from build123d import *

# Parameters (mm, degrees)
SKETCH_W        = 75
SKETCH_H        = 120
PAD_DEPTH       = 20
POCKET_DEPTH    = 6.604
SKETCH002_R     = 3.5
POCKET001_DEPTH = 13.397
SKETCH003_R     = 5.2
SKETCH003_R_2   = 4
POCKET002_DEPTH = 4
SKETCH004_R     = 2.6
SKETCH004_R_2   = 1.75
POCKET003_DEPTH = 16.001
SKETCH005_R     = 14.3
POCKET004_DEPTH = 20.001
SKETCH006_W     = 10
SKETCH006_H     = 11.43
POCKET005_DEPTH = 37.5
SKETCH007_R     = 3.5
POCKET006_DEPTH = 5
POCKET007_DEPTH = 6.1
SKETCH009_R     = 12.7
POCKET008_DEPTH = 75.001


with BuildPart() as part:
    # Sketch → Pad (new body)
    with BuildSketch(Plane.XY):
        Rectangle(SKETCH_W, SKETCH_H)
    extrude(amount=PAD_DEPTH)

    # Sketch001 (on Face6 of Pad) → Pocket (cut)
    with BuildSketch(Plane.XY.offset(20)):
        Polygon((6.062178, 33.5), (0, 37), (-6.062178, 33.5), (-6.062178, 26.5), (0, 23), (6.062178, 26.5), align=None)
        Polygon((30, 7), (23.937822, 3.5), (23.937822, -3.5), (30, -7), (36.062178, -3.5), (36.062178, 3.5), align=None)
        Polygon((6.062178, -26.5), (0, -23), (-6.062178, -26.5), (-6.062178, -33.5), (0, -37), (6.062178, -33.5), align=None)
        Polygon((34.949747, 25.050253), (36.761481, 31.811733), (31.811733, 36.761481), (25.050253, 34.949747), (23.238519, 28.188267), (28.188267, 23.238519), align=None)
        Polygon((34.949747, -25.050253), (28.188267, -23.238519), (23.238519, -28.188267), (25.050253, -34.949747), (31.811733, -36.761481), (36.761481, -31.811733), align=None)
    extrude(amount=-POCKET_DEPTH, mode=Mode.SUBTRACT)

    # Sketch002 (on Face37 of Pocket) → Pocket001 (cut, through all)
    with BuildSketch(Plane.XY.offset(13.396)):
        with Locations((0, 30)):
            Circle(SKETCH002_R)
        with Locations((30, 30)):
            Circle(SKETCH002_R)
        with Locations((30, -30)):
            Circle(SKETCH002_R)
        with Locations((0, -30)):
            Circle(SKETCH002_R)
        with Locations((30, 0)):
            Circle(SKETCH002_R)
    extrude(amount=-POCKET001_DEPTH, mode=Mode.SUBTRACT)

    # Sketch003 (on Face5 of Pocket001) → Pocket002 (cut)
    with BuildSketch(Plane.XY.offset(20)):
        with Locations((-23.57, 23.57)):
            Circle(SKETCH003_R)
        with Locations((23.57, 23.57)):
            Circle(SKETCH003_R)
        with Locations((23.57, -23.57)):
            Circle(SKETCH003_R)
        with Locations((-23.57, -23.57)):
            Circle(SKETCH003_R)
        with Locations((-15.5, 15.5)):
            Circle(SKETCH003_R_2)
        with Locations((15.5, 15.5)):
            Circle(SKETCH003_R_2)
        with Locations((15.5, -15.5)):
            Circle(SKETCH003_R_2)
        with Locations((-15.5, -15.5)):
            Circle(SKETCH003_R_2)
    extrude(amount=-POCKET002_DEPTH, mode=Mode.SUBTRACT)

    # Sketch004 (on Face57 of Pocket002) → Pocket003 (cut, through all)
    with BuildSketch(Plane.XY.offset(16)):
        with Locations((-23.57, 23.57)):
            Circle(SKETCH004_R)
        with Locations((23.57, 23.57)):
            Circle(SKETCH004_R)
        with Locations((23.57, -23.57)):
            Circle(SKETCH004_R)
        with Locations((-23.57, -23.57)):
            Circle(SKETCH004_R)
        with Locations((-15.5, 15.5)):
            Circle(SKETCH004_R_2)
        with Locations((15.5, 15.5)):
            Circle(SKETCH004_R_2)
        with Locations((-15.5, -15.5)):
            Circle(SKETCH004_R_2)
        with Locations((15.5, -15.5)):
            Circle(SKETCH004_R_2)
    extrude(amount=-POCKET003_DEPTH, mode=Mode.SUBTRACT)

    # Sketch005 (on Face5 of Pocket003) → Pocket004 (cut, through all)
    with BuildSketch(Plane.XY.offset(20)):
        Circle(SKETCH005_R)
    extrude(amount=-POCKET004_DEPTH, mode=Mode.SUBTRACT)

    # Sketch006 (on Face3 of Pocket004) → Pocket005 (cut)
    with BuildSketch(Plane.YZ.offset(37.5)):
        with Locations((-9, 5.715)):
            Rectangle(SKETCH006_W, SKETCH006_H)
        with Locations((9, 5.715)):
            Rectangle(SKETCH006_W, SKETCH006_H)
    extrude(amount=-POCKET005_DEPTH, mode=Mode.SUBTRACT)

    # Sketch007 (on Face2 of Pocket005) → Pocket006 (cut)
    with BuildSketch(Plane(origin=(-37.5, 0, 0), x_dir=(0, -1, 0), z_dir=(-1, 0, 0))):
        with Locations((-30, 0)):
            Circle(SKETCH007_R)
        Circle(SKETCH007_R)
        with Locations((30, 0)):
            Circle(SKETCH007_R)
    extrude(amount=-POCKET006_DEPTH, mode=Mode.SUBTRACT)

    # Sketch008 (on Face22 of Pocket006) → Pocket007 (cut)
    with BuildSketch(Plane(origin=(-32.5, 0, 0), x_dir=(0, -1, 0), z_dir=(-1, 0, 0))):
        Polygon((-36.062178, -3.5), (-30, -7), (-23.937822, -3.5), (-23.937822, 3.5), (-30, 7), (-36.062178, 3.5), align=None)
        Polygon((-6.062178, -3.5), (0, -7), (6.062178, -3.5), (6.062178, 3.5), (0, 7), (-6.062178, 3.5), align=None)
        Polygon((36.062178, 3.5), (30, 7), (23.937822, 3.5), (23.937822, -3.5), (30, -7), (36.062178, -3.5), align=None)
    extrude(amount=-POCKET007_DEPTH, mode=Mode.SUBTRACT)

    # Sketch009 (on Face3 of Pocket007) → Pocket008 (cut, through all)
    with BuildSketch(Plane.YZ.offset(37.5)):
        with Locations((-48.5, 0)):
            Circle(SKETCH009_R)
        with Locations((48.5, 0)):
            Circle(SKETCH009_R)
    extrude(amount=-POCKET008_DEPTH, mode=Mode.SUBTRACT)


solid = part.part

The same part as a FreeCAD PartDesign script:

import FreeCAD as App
import Part
import Sketcher
Q = App.Units.Quantity


def add_polygon(sketch, points):
    """Adds a closed chain of lines whose ends are joined by coincident constraints."""
    first, n = sketch.GeometryCount, len(points)
    for a, b in zip(points, points[1:] + points[:1]):
        sketch.addGeometry(Part.LineSegment(App.Vector(*a, 0), App.Vector(*b, 0)), False)
    for i in range(n):
        sketch.addConstraint(Sketcher.Constraint("Coincident", first + i, 2, first + (i + 1) % n, 1))

doc = App.newDocument("Part")
body = doc.addObject("PartDesign::Body", "Body")

# Sketch on XY plane
sketch1 = doc.addObject("Sketcher::SketchObject", "Sketch")
body.addObject(sketch1)
sketch1.AttachmentSupport = (doc.XY_Plane, [""])
sketch1.MapMode = "FlatFace"
add_polygon(sketch1, [(-38, 60), (-38, -60), (38, -60), (38, 60)])  # lines 0-3
sketch1.addConstraint(Sketcher.Constraint("Vertical", 0))
sketch1.addConstraint(Sketcher.Constraint("Horizontal", 1))
sketch1.addConstraint(Sketcher.Constraint("Vertical", 2))
sketch1.addConstraint(Sketcher.Constraint("Horizontal", 3))
sketch1.addConstraint(Sketcher.Constraint("Symmetric", 0, 2, 2, 2, -1, 1))
sketch1.addConstraint(Sketcher.Constraint("DistanceX", 1, 1, 1, 2, 75.0))
sketch1.addConstraint(Sketcher.Constraint("DistanceY", 0, 2, 0, 1, 120.0))
pad1 = doc.addObject("PartDesign::Pad", "Pad")
body.addObject(pad1)
pad1.Profile = sketch1
pad1.Length = 20

# Sketch on XY plane
sketch2 = doc.addObject("Sketcher::SketchObject", "Sketch001")
body.addObject(sketch2)
sketch2.AttachmentSupport = (doc.XY_Plane, [""])
sketch2.MapMode = "FlatFace"
sketch2.AttachmentOffset = App.Placement(App.Vector(0, 0, 20), App.Rotation())
add_polygon(sketch2, [(6, 34), (0, 37), (-6, 34), (-6, 26), (0, 23), (6, 26)])  # lines 0-5
add_polygon(sketch2, [(30, 7), (24, 4), (24, -4), (30, -7), (36, -4), (36, 4)])  # lines 6-11
add_polygon(sketch2, [(6, -26), (0, -23), (-6, -26), (-6, -34), (0, -37), (6, -34)])  # lines 12-17
add_polygon(sketch2, [(35, 25), (37, 32), (32, 37), (25, 35), (23, 28), (28, 23)])  # lines 18-23
add_polygon(sketch2, [(35, -25), (28, -23), (23, -28), (25, -35), (32, -37), (37, -32)])  # lines 24-29
sketch2.addConstraint(Sketcher.Constraint("Vertical", 2))
sketch2.addConstraint(Sketcher.Constraint("Vertical", 5))
sketch2.addConstraint(Sketcher.Constraint("Vertical", 7))
sketch2.addConstraint(Sketcher.Constraint("Vertical", 10))
sketch2.addConstraint(Sketcher.Constraint("Vertical", 14))
sketch2.addConstraint(Sketcher.Constraint("Vertical", 17))
sketch2.addConstraint(Sketcher.Constraint("Symmetric", 3, 2, 12, 2, -1, 1))
sketch2.addConstraint(Sketcher.Constraint("Symmetric", 4, 2, 13, 2, -1, 1))
sketch2.addConstraint(Sketcher.Constraint("Symmetric", 0, 2, 15, 2, -1, 1))
sketch2.addConstraint(Sketcher.Constraint("Symmetric", 1, 2, 16, 2, -1, 1))
sketch2.addConstraint(Sketcher.Constraint("Symmetric", 2, 2, 4, 2, -2))
sketch2.addConstraint(Sketcher.Constraint("Symmetric", 8, 2, 11, 2, -1))
sketch2.addConstraint(Sketcher.Constraint("Symmetric", 22, 2, 24, 2, -1))
sketch2.addConstraint(Sketcher.Constraint("Symmetric", 21, 2, 25, 2, -1))
sketch2.addConstraint(Sketcher.Constraint("Symmetric", 20, 2, 26, 2, -1))
sketch2.addConstraint(Sketcher.Constraint("Symmetric", 19, 2, 27, 2, -1))
sketch2.addConstraint(Sketcher.Constraint("Symmetric", 18, 2, 28, 2, -1))
sketch2.addConstraint(Sketcher.Constraint("Symmetric", 23, 2, 29, 2, -1))
sketch2.addConstraint(Sketcher.Constraint("PointOnObject", 0, 2, -2))
sketch2.addConstraint(Sketcher.Constraint("PointOnObject", 3, 2, -2))
sketch2.addConstraint(Sketcher.Constraint("Parallel", 0, 3))
sketch2.addConstraint(Sketcher.Constraint("Parallel", 1, 4))
sketch2.addConstraint(Sketcher.Constraint("Parallel", 4, 6))
sketch2.addConstraint(Sketcher.Constraint("Parallel", 3, 8))
sketch2.addConstraint(Sketcher.Constraint("Parallel", 6, 9))
sketch2.addConstraint(Sketcher.Constraint("Parallel", 8, 11))
sketch2.addConstraint(Sketcher.Constraint("Parallel", 11, 12))
sketch2.addConstraint(Sketcher.Constraint("Parallel", 12, 15))
sketch2.addConstraint(Sketcher.Constraint("Parallel", 18, 21))
sketch2.addConstraint(Sketcher.Constraint("Parallel", 19, 22))
sketch2.addConstraint(Sketcher.Constraint("Parallel", 20, 23))
sketch2.addConstraint(Sketcher.Constraint("Perpendicular", 21, 24))
sketch2.addConstraint(Sketcher.Constraint("Perpendicular", 22, 25))
sketch2.addConstraint(Sketcher.Constraint("Horizontal", 7, 2, 9, 2))
sketch2.addConstraint(Sketcher.Constraint("Equal", 5, 7))
sketch2.addConstraint(Sketcher.Constraint("Equal", 4, 6))
sketch2.addConstraint(Sketcher.Constraint("Equal", 16, 18))
sketch2.addConstraint(Sketcher.Constraint("Equal", 18, 19))
sketch2.addConstraint(Sketcher.Constraint("Equal", 19, 20))
sketch2.addConstraint(Sketcher.Constraint("Equal", 20, 21))
sketch2.addConstraint(Sketcher.Constraint("DistanceY", 2, 2, 2, 1, 7.0))
sketch2.addConstraint(Sketcher.Constraint("Angle", 0, Q("150.000001 deg")))
sketch2.addConstraint(Sketcher.Constraint("Angle", 18, Q("74.999993 deg")))
sketch2.addConstraint(Sketcher.Constraint("Distance", 0, 7.0))
sketch2.addConstraint(Sketcher.Constraint("DistanceY", -1, 1, 0, 2, 37.0))
sketch2.addConstraint(Sketcher.Constraint("DistanceX", -1, 1, 8, 2, 30.0))
sketch2.addConstraint(Sketcher.Constraint("DistanceX", -1, 1, 18, 2, 36.761481))
sketch2.addConstraint(Sketcher.Constraint("DistanceY", -1, 1, 19, 2, 36.761481))
pocket1 = doc.addObject("PartDesign::Pocket", "Pocket")
body.addObject(pocket1)
pocket1.Profile = sketch2
pocket1.Length = 6.604

# Sketch on XY plane
sketch3 = doc.addObject("Sketcher::SketchObject", "Sketch002")
body.addObject(sketch3)
sketch3.AttachmentSupport = (doc.XY_Plane, [""])
sketch3.MapMode = "FlatFace"
sketch3.AttachmentOffset = App.Placement(App.Vector(0, 0, 13.396), App.Rotation())
sketch3.addGeometry(Part.Circle(App.Vector(0, 30, 0), App.Vector(0, 0, 1), 3.5), False)
sketch3.addGeometry(Part.Circle(App.Vector(30, 30, 0), App.Vector(0, 0, 1), 3.5), False)
sketch3.addGeometry(Part.Circle(App.Vector(30, -30, 0), App.Vector(0, 0, 1), 3.5), False)
sketch3.addGeometry(Part.Circle(App.Vector(0, -30, 0), App.Vector(0, 0, 1), 3.5), False)
sketch3.addGeometry(Part.Circle(App.Vector(30, 0, 0), App.Vector(0, 0, 1), 3.5), False)
sketch3.addConstraint(Sketcher.Constraint("Equal", 0, 1))
sketch3.addConstraint(Sketcher.Constraint("Equal", 1, 2))
sketch3.addConstraint(Sketcher.Constraint("Equal", 2, 3))
sketch3.addConstraint(Sketcher.Constraint("Equal", 3, 4))
sketch3.addConstraint(Sketcher.Constraint("Symmetric", 0, 3, 3, 3, -1, 1))
sketch3.addConstraint(Sketcher.Constraint("Symmetric", 1, 3, 2, 3, -1))
sketch3.addConstraint(Sketcher.Constraint("PointOnObject", 0, 3, -2))
sketch3.addConstraint(Sketcher.Constraint("PointOnObject", 4, 3, -1))
sketch3.addConstraint(Sketcher.Constraint("Horizontal", 0, 3, 1, 3))
sketch3.addConstraint(Sketcher.Constraint("Vertical", 2, 3, 4, 3))
sketch3.addConstraint(Sketcher.Constraint("Diameter", 0, 7.0))
sketch3.addConstraint(Sketcher.Constraint("DistanceY", -1, 1, 0, 3, 30.0))
sketch3.addConstraint(Sketcher.Constraint("DistanceX", -1, 1, 1, 3, 30.0))
pocket2 = doc.addObject("PartDesign::Pocket", "Pocket001")
body.addObject(pocket2)
pocket2.Profile = sketch3
pocket2.Type = "ThroughAll"

# Sketch on XY plane
sketch4 = doc.addObject("Sketcher::SketchObject", "Sketch003")
body.addObject(sketch4)
sketch4.AttachmentSupport = (doc.XY_Plane, [""])
sketch4.MapMode = "FlatFace"
sketch4.AttachmentOffset = App.Placement(App.Vector(0, 0, 20), App.Rotation())
sketch4.addGeometry(Part.Circle(App.Vector(-23.6, 23.6, 0), App.Vector(0, 0, 1), 5.2), False)
sketch4.addGeometry(Part.Circle(App.Vector(23.6, 23.6, 0), App.Vector(0, 0, 1), 5.2), False)
sketch4.addGeometry(Part.Circle(App.Vector(23.6, -23.6, 0), App.Vector(0, 0, 1), 5.2), False)
sketch4.addGeometry(Part.Circle(App.Vector(-23.6, -23.6, 0), App.Vector(0, 0, 1), 5.2), False)
sketch4.addGeometry(Part.Circle(App.Vector(-15.5, 15.5, 0), App.Vector(0, 0, 1), 4), False)
sketch4.addGeometry(Part.Circle(App.Vector(15.5, 15.5, 0), App.Vector(0, 0, 1), 4), False)
sketch4.addGeometry(Part.Circle(App.Vector(15.5, -15.5, 0), App.Vector(0, 0, 1), 4), False)
sketch4.addGeometry(Part.Circle(App.Vector(-15.5, -15.5, 0), App.Vector(0, 0, 1), 4), False)
sketch4.addConstraint(Sketcher.Constraint("Equal", 0, 1))
sketch4.addConstraint(Sketcher.Constraint("Equal", 1, 2))
sketch4.addConstraint(Sketcher.Constraint("Equal", 2, 3))
sketch4.addConstraint(Sketcher.Constraint("Equal", 4, 5))
sketch4.addConstraint(Sketcher.Constraint("Equal", 5, 6))
sketch4.addConstraint(Sketcher.Constraint("Equal", 6, 7))
sketch4.addConstraint(Sketcher.Constraint("Symmetric", 0, 3, 2, 3, -1, 1))
sketch4.addConstraint(Sketcher.Constraint("Symmetric", 1, 3, 3, 3, -1, 1))
sketch4.addConstraint(Sketcher.Constraint("Symmetric", 4, 3, 6, 3, -1, 1))
sketch4.addConstraint(Sketcher.Constraint("Symmetric", 5, 3, 7, 3, -1, 1))
sketch4.addConstraint(Sketcher.Constraint("Symmetric", 0, 3, 1, 3, -2))
sketch4.addConstraint(Sketcher.Constraint("Symmetric", 4, 3, 5, 3, -2))
sketch4.addConstraint(Sketcher.Constraint("Diameter", 4, 8.0))
sketch4.addConstraint(Sketcher.Constraint("Diameter", 0, 10.4))
sketch4.addConstraint(Sketcher.Constraint("DistanceX", 4, 3, 5, 3, 31.0))
sketch4.addConstraint(Sketcher.Constraint("DistanceY", 6, 3, 5, 3, 31.0))
sketch4.addConstraint(Sketcher.Constraint("DistanceX", 0, 3, -1, 1, 23.57))
sketch4.addConstraint(Sketcher.Constraint("DistanceY", -1, 1, 0, 3, 23.57))
pocket3 = doc.addObject("PartDesign::Pocket", "Pocket002")
body.addObject(pocket3)
pocket3.Profile = sketch4
pocket3.Length = 4

# Sketch on XY plane
sketch5 = doc.addObject("Sketcher::SketchObject", "Sketch004")
body.addObject(sketch5)
sketch5.AttachmentSupport = (doc.XY_Plane, [""])
sketch5.MapMode = "FlatFace"
sketch5.AttachmentOffset = App.Placement(App.Vector(0, 0, 16), App.Rotation())
sketch5.addGeometry(Part.Circle(App.Vector(-23.6, 23.6, 0), App.Vector(0, 0, 1), 2.6), False)
sketch5.addGeometry(Part.Circle(App.Vector(23.6, 23.6, 0), App.Vector(0, 0, 1), 2.6), False)
sketch5.addGeometry(Part.Circle(App.Vector(23.6, -23.6, 0), App.Vector(0, 0, 1), 2.6), False)
sketch5.addGeometry(Part.Circle(App.Vector(-23.6, -23.6, 0), App.Vector(0, 0, 1), 2.6), False)
sketch5.addGeometry(Part.Circle(App.Vector(-15.5, 15.5, 0), App.Vector(0, 0, 1), 1.8), False)
sketch5.addGeometry(Part.Circle(App.Vector(15.5, 15.5, 0), App.Vector(0, 0, 1), 1.8), False)
sketch5.addGeometry(Part.Circle(App.Vector(-15.5, -15.5, 0), App.Vector(0, 0, 1), 1.8), False)
sketch5.addGeometry(Part.Circle(App.Vector(15.5, -15.5, 0), App.Vector(0, 0, 1), 1.8), False)
sketch5.addConstraint(Sketcher.Constraint("Equal", 0, 1))
sketch5.addConstraint(Sketcher.Constraint("Equal", 1, 2))
sketch5.addConstraint(Sketcher.Constraint("Equal", 2, 3))
sketch5.addConstraint(Sketcher.Constraint("Equal", 4, 5))
sketch5.addConstraint(Sketcher.Constraint("Equal", 5, 6))
sketch5.addConstraint(Sketcher.Constraint("Equal", 6, 7))
sketch5.addConstraint(Sketcher.Constraint("Symmetric", 0, 3, 2, 3, -1, 1))
sketch5.addConstraint(Sketcher.Constraint("Symmetric", 1, 3, 3, 3, -1, 1))
sketch5.addConstraint(Sketcher.Constraint("Symmetric", 5, 3, 6, 3, -1, 1))
sketch5.addConstraint(Sketcher.Constraint("Symmetric", 4, 3, 7, 3, -1, 1))
sketch5.addConstraint(Sketcher.Constraint("Symmetric", 0, 3, 1, 3, -2))
sketch5.addConstraint(Sketcher.Constraint("Symmetric", 4, 3, 5, 3, -2))
sketch5.addConstraint(Sketcher.Constraint("Diameter", 0, 5.2))
sketch5.addConstraint(Sketcher.Constraint("Diameter", 4, 3.5))
sketch5.addConstraint(Sketcher.Constraint("DistanceX", 4, 3, 5, 3, 31.0))
sketch5.addConstraint(Sketcher.Constraint("DistanceY", 6, 3, 4, 3, 31.0))
sketch5.addConstraint(Sketcher.Constraint("DistanceX", 0, 3, -1, 1, 23.57))
sketch5.addConstraint(Sketcher.Constraint("DistanceY", -1, 1, 0, 3, 23.57))
pocket4 = doc.addObject("PartDesign::Pocket", "Pocket003")
body.addObject(pocket4)
pocket4.Profile = sketch5
pocket4.Type = "ThroughAll"

# Sketch on XY plane
sketch6 = doc.addObject("Sketcher::SketchObject", "Sketch005")
body.addObject(sketch6)
sketch6.AttachmentSupport = (doc.XY_Plane, [""])
sketch6.MapMode = "FlatFace"
sketch6.AttachmentOffset = App.Placement(App.Vector(0, 0, 20), App.Rotation())
sketch6.addGeometry(Part.Circle(App.Vector(0, 0, 0), App.Vector(0, 0, 1), 14), False)
sketch6.addConstraint(Sketcher.Constraint("Coincident", 0, 3, -1, 1))
sketch6.addConstraint(Sketcher.Constraint("Diameter", 0, 28.6))
pocket5 = doc.addObject("PartDesign::Pocket", "Pocket004")
body.addObject(pocket5)
pocket5.Profile = sketch6
pocket5.Type = "ThroughAll"

# Sketch on YZ plane
sketch7 = doc.addObject("Sketcher::SketchObject", "Sketch006")
body.addObject(sketch7)
sketch7.AttachmentSupport = (doc.YZ_Plane, [""])
sketch7.MapMode = "FlatFace"
sketch7.AttachmentOffset = App.Placement(App.Vector(0, 0, 37.5), App.Rotation())
add_polygon(sketch7, [(-14, 11), (-14, 0), (-4, 0), (-4, 11)])  # lines 0-3
add_polygon(sketch7, [(4, 11), (4, 0), (14, 0), (14, 11)])  # lines 4-7
sketch7.addConstraint(Sketcher.Constraint("Vertical", 0))
sketch7.addConstraint(Sketcher.Constraint("Horizontal", 1))
sketch7.addConstraint(Sketcher.Constraint("Vertical", 2))
sketch7.addConstraint(Sketcher.Constraint("Horizontal", 3))
sketch7.addConstraint(Sketcher.Constraint("Vertical", 4))
sketch7.addConstraint(Sketcher.Constraint("Horizontal", 5))
sketch7.addConstraint(Sketcher.Constraint("Vertical", 6))
sketch7.addConstraint(Sketcher.Constraint("Horizontal", 7))
sketch7.addConstraint(Sketcher.Constraint("Symmetric", 1, 2, 4, 2, -1, 1))
sketch7.addConstraint(Sketcher.Constraint("Symmetric", 0, 2, 5, 2, -2))
sketch7.addConstraint(Sketcher.Constraint("Horizontal", 3, 2, 6, 2))
sketch7.addConstraint(Sketcher.Constraint("DistanceX", 1, 1, 1, 2, 10.0))
sketch7.addConstraint(Sketcher.Constraint("DistanceX", 0, 2, -1, 1, 14.0))
sketch7.addConstraint(Sketcher.Constraint("DistanceY", 0, 2, 0, 1, 11.43))
pocket6 = doc.addObject("PartDesign::Pocket", "Pocket005")
body.addObject(pocket6)
pocket6.Profile = sketch7
pocket6.Length = 37.5

# Sketch on YZ plane
sketch8 = doc.addObject("Sketcher::SketchObject", "Sketch007")
body.addObject(sketch8)
sketch8.AttachmentSupport = (doc.YZ_Plane, [""])
sketch8.MapMode = "FlatFace"
sketch8.AttachmentOffset = App.Placement(App.Vector(0, 0, -37.5), App.Rotation())
sketch8.addGeometry(Part.Circle(App.Vector(30, 0, 0), App.Vector(0, 0, 1), 3.5), False)
sketch8.addGeometry(Part.Circle(App.Vector(0, 0, 0), App.Vector(0, 0, 1), 3.5), False)
sketch8.addGeometry(Part.Circle(App.Vector(-30, 0, 0), App.Vector(0, 0, 1), 3.5), False)
sketch8.addConstraint(Sketcher.Constraint("Coincident", 1, 3, -1, 1))
sketch8.addConstraint(Sketcher.Constraint("Equal", 0, 1))
sketch8.addConstraint(Sketcher.Constraint("Equal", 1, 2))
sketch8.addConstraint(Sketcher.Constraint("Symmetric", 0, 3, 2, 3, -1, 1))
sketch8.addConstraint(Sketcher.Constraint("PointOnObject", 0, 3, -1))
sketch8.addConstraint(Sketcher.Constraint("Diameter", 0, 7.0))
sketch8.addConstraint(Sketcher.Constraint("DistanceX", -1, 1, 0, 3, 30.0))
pocket7 = doc.addObject("PartDesign::Pocket", "Pocket006")
body.addObject(pocket7)
pocket7.Profile = sketch8
pocket7.Length = 5
pocket7.Reversed = True

# Sketch on YZ plane
sketch9 = doc.addObject("Sketcher::SketchObject", "Sketch008")
body.addObject(sketch9)
sketch9.AttachmentSupport = (doc.YZ_Plane, [""])
sketch9.MapMode = "FlatFace"
sketch9.AttachmentOffset = App.Placement(App.Vector(0, 0, -32.5), App.Rotation())
add_polygon(sketch9, [(36, -4), (30, -7), (24, -4), (24, 4), (30, 7), (36, 4)])  # lines 0-5
add_polygon(sketch9, [(6, -4), (0, -7), (-6, -4), (-6, 4), (0, 7), (6, 4)])  # lines 6-11
add_polygon(sketch9, [(-36, 4), (-30, 7), (-24, 4), (-24, -4), (-30, -7), (-36, -4)])  # lines 12-17
sketch9.addConstraint(Sketcher.Constraint("Vertical", 2))
sketch9.addConstraint(Sketcher.Constraint("Vertical", 5))
sketch9.addConstraint(Sketcher.Constraint("Vertical", 8))
sketch9.addConstraint(Sketcher.Constraint("Vertical", 11))
sketch9.addConstraint(Sketcher.Constraint("Vertical", 14))
sketch9.addConstraint(Sketcher.Constraint("Vertical", 17))
sketch9.addConstraint(Sketcher.Constraint("Symmetric", 6, 2, 9, 2, -1, 1))
sketch9.addConstraint(Sketcher.Constraint("Symmetric", 7, 2, 10, 2, -1, 1))
sketch9.addConstraint(Sketcher.Constraint("Symmetric", 0, 2, 12, 2, -1, 1))
sketch9.addConstraint(Sketcher.Constraint("Symmetric", 1, 2, 13, 2, -1, 1))
sketch9.addConstraint(Sketcher.Constraint("Symmetric", 3, 2, 15, 2, -1, 1))
sketch9.addConstraint(Sketcher.Constraint("Symmetric", 4, 2, 16, 2, -1, 1))
sketch9.addConstraint(Sketcher.Constraint("Symmetric", 3, 2, 12, 2, -2))
sketch9.addConstraint(Sketcher.Constraint("PointOnObject", 6, 2, -2))
sketch9.addConstraint(Sketcher.Constraint("Parallel", 0, 3))
sketch9.addConstraint(Sketcher.Constraint("Parallel", 1, 4))
sketch9.addConstraint(Sketcher.Constraint("Parallel", 3, 6))
sketch9.addConstraint(Sketcher.Constraint("Parallel", 4, 7))
sketch9.addConstraint(Sketcher.Constraint("Parallel", 6, 9))
sketch9.addConstraint(Sketcher.Constraint("Parallel", 9, 12))
sketch9.addConstraint(Sketcher.Constraint("Parallel", 12, 15))
sketch9.addConstraint(Sketcher.Constraint("Horizontal", 2, 2, 4, 2))
sketch9.addConstraint(Sketcher.Constraint("Horizontal", 1, 2, 5, 2))
sketch9.addConstraint(Sketcher.Constraint("Horizontal", 0, 2, 6, 2))
sketch9.addConstraint(Sketcher.Constraint("Horizontal", 5, 2, 7, 2))
sketch9.addConstraint(Sketcher.Constraint("DistanceY", 2, 1, 2, 2, 7.0))
sketch9.addConstraint(Sketcher.Constraint("Angle", 0, Q("-150.000001 deg")))
sketch9.addConstraint(Sketcher.Constraint("Distance", 0, 7.0))
sketch9.addConstraint(Sketcher.Constraint("DistanceX", -1, 1, 0, 2, 30.0))
pocket8 = doc.addObject("PartDesign::Pocket", "Pocket007")
body.addObject(pocket8)
pocket8.Profile = sketch9
pocket8.Length = 6.1
pocket8.Reversed = True

# Sketch on YZ plane
sketch10 = doc.addObject("Sketcher::SketchObject", "Sketch009")
body.addObject(sketch10)
sketch10.AttachmentSupport = (doc.YZ_Plane, [""])
sketch10.MapMode = "FlatFace"
sketch10.AttachmentOffset = App.Placement(App.Vector(0, 0, 37.5), App.Rotation())
sketch10.addGeometry(Part.Circle(App.Vector(-48, 0, 0), App.Vector(0, 0, 1), 13), False)
sketch10.addGeometry(Part.Circle(App.Vector(48, 0, 0), App.Vector(0, 0, 1), 13), False)
sketch10.addConstraint(Sketcher.Constraint("Equal", 0, 1))
sketch10.addConstraint(Sketcher.Constraint("Symmetric", 0, 3, 1, 3, -1, 1))
sketch10.addConstraint(Sketcher.Constraint("PointOnObject", 0, 3, -1))
sketch10.addConstraint(Sketcher.Constraint("Diameter", 0, 25.4))
sketch10.addConstraint(Sketcher.Constraint("DistanceX", 0, 3, 1, 3, 97.0))
pocket9 = doc.addObject("PartDesign::Pocket", "Pocket008")
body.addObject(pocket9)
pocket9.Profile = sketch10
pocket9.Type = "ThroughAll"

doc.recompute()
